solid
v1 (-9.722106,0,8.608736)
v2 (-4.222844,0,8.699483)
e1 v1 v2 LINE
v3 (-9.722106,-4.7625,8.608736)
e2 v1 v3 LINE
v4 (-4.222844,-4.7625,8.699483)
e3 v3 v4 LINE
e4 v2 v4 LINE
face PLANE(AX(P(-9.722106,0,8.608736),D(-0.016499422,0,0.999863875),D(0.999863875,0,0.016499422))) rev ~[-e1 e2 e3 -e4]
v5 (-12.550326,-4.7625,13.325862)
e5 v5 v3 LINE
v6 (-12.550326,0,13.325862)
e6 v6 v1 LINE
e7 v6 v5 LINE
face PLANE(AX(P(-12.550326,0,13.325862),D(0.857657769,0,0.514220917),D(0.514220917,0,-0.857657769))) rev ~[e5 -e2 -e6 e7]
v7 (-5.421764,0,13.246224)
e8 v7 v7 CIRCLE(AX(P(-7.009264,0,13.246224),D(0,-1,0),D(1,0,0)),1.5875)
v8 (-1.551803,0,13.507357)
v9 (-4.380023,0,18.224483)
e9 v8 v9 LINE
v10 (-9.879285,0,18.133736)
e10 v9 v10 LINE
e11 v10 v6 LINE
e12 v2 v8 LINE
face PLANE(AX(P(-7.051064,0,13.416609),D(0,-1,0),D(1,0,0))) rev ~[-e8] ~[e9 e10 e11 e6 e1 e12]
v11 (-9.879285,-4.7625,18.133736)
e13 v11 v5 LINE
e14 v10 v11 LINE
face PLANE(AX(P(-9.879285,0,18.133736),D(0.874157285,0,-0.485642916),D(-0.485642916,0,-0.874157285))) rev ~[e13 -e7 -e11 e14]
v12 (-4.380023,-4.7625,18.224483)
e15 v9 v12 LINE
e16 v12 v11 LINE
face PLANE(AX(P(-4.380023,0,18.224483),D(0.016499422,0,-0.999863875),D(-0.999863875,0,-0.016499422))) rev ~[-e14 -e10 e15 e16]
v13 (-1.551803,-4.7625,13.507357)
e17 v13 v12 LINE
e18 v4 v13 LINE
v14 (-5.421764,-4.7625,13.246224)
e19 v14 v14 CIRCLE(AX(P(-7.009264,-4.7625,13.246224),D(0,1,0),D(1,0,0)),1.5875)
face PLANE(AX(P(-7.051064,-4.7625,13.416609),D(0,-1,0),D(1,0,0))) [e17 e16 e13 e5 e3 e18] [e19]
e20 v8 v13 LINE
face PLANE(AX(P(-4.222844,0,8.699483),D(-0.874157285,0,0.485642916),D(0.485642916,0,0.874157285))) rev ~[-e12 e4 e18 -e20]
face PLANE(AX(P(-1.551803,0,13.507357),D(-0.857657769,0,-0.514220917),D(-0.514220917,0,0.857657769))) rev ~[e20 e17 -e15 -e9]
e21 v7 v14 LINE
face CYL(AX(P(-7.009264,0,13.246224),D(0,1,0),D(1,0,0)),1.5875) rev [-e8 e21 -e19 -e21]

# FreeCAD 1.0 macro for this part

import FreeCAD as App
import Part
import Sketcher
Q = App.Units.Quantity

doc = App.newDocument("Part")
params = doc.addObject("Spreadsheet::Sheet", "Params")
for row, (alias, value) in enumerate([
    ("pad1_length", "0.1875 in"),
    ("sketch2_diameter", "0.125 in"),
    ("pocket1_length", "0.188 in"),
], start=1):
    params.set(f"A{row}", alias)
    params.set(f"B{row}", "=" + value)
    params.setAlias(f"B{row}", alias)

body = doc.addObject("PartDesign::Body", "Body")

sketch1 = doc.addObject("Sketcher::SketchObject", "Sketch")
body.addObject(sketch1)
sketch1.AttachmentSupport = (doc.XZ_Plane, [""])
sketch1.MapMode = "FlatFace"
sketch1.addGeometry([
    Part.LineSegment(App.Vector(-4.222844, 8.699483, 0), App.Vector(-1.551803, 13.507357, 0)),
    Part.LineSegment(App.Vector(-1.551803, 13.507357, 0), App.Vector(-4.380023, 18.224483, 0)),
    Part.LineSegment(App.Vector(-4.380023, 18.224483, 0), App.Vector(-9.879285, 18.133736, 0)),
    Part.LineSegment(App.Vector(-9.879285, 18.133736, 0), App.Vector(-12.550326, 13.325862, 0)),
    Part.LineSegment(App.Vector(-12.550326, 13.325862, 0), App.Vector(-9.722106, 8.608736, 0)),
    Part.LineSegment(App.Vector(-9.722106, 8.608736, 0), App.Vector(-4.222844, 8.699483, 0)),
], False)
sketch1.addConstraint([
    Sketcher.Constraint("Coincident", 0, 2, 1, 1),
    Sketcher.Constraint("Coincident", 1, 2, 2, 1),
    Sketcher.Constraint("Coincident", 2, 2, 3, 1),
    Sketcher.Constraint("Coincident", 3, 2, 4, 1),
    Sketcher.Constraint("Coincident", 4, 2, 5, 1),
    Sketcher.Constraint("Coincident", 5, 2, 0, 1),
    Sketcher.Constraint("DistanceY", 4, 2, 2, 2, Q("0.375 in")),
    Sketcher.Constraint("DistanceY", 5, 2, 1, 2, Q("0.375 in")),
    Sketcher.Constraint("Distance", 0, Q("5.50001 mm")),
    Sketcher.Constraint("Distance", 1, Q("5.50001 mm")),
    Sketcher.Constraint("Distance", 2, Q("5.500011 mm")),
    Sketcher.Constraint("Distance", 3, Q("5.50001 mm")),
    Sketcher.Constraint("Distance", 4, Q("5.50001 mm")),
    Sketcher.Constraint("Distance", 5, Q("5.500011 mm")),
    Sketcher.Constraint("DistanceX", 1, 2, 0, 2, Q("2.82822 mm")),
    Sketcher.Constraint("DistanceX", 2, 2, 1, 2, Q("5.499262 mm")),
    Sketcher.Constraint("DistanceX", 0, 2, -1, 1, Q("1.551803 mm")),
    Sketcher.Constraint("DistanceY", -1, 1, 0, 2, Q("13.507357 mm")),
])
pad1 = doc.addObject("PartDesign::Pad", "Pad")
body.addObject(pad1)
pad1.Profile = sketch1
pad1.setExpression("Length", "Params.pad1_length")

sketch2 = doc.addObject("Sketcher::SketchObject", "Sketch001")
body.addObject(sketch2)
sketch2.AttachmentSupport = (doc.XZ_Plane, [""])
sketch2.MapMode = "FlatFace"
sketch2.addGeometry(Part.Circle(App.Vector(-7.009264, 13.246224, 0), App.Vector(0, 0, 1), 1.5875), False)
sketch2.addConstraint([
    Sketcher.Constraint("Diameter", 0, Q("0.125 in")),
    Sketcher.Constraint("DistanceX", 0, 3, -1, 1, Q("7.009264 mm")),
    Sketcher.Constraint("DistanceY", -1, 1, 0, 3, Q("13.246224 mm")),
])
sketch2.setExpression("Constraints[0]", "Params.sketch2_diameter")
pocket1 = doc.addObject("PartDesign::Pocket", "Pocket")
body.addObject(pocket1)
pocket1.Profile = sketch2
pocket1.setExpression("Length", "Params.pocket1_length")
pocket1.Reversed = True

doc.recompute()
